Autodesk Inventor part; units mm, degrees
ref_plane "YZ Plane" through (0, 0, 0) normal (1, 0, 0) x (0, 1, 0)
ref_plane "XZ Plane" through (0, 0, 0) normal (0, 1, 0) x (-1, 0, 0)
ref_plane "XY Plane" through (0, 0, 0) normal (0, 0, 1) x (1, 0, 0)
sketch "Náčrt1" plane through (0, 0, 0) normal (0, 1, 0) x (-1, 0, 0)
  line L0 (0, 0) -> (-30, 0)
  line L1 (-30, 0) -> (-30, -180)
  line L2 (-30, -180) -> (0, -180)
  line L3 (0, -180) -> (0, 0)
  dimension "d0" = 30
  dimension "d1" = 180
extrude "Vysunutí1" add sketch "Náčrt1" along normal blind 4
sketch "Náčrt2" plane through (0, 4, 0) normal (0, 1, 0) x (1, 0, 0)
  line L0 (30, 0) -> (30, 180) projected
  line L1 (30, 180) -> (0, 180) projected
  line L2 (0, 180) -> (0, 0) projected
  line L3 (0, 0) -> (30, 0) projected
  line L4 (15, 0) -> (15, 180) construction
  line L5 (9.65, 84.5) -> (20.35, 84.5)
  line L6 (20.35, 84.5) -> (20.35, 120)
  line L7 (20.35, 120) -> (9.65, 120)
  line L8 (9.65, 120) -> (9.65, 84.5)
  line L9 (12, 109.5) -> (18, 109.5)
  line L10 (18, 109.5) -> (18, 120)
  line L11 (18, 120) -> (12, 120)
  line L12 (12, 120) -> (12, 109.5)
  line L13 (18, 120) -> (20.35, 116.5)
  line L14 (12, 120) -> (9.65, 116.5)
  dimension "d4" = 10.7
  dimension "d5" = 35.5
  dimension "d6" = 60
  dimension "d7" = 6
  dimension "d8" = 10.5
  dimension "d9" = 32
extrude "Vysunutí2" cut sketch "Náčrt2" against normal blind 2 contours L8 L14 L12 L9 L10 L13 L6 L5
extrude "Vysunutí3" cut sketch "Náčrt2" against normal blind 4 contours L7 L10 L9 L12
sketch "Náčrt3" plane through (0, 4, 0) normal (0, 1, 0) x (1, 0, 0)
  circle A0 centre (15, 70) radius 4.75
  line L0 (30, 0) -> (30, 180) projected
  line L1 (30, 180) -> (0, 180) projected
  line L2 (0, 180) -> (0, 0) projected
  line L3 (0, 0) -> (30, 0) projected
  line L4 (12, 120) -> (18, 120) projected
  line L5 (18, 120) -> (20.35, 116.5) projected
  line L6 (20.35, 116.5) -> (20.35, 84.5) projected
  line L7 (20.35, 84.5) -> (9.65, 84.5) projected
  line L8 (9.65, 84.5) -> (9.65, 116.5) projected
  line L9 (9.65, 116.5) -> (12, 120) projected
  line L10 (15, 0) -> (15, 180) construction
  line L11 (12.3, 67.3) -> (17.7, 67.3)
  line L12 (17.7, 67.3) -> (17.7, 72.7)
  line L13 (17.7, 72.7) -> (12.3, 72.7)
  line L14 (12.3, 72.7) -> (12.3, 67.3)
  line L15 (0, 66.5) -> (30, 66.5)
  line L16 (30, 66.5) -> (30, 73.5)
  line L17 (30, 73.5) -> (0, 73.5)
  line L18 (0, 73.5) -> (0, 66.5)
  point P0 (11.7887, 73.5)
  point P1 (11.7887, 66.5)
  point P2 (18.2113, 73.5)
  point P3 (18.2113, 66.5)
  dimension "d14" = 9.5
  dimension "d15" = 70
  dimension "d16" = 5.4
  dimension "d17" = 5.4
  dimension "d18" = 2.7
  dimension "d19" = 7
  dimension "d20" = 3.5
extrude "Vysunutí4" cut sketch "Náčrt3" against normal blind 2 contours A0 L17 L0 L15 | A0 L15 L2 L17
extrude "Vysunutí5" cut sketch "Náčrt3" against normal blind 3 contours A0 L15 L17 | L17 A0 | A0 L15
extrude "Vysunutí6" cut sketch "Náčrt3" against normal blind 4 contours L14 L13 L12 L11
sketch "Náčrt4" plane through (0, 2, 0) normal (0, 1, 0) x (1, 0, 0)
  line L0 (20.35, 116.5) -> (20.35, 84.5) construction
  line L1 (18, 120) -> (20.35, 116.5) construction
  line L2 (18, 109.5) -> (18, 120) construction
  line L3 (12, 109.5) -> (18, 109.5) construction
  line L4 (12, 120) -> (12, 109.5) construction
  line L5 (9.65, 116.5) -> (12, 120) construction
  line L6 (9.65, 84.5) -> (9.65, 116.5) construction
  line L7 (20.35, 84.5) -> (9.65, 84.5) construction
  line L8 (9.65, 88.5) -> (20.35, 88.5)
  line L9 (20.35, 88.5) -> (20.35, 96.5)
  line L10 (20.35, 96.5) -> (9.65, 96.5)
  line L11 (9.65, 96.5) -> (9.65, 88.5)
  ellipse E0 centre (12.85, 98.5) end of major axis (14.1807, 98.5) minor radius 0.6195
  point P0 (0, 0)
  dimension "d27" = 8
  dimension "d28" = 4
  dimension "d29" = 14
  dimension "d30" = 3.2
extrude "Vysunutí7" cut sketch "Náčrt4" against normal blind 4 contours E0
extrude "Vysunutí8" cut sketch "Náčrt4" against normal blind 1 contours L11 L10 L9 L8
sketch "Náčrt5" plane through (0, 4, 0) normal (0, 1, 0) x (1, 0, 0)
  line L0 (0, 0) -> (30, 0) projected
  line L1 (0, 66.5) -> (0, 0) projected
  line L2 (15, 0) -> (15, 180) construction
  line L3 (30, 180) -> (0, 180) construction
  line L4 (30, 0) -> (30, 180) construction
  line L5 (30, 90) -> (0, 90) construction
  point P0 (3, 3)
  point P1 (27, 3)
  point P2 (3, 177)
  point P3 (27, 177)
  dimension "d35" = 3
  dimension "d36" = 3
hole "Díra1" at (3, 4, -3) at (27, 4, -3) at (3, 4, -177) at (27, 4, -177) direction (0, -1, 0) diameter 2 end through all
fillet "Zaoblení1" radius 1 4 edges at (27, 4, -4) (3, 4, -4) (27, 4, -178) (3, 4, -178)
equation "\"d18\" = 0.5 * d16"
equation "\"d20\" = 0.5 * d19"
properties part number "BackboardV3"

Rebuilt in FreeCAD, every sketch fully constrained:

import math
import FreeCAD as App
import Part
import Sketcher

V = App.Vector
Q = App.Units.Quantity


def edges_at(feature, points):
    """Names of the edges that pass closest to the given points."""
    edges = feature.Shape.Edges
    near = lambda p: min(range(len(edges)), key=lambda i: edges[i].distToShape(Part.Vertex(*p))[0])
    return sorted({f"Edge{near(p) + 1}" for p in points})


def add_polygon(sketch, points):
    """Adds a closed chain of lines whose ends are joined by coincident constraints."""
    first, n = sketch.GeometryCount, len(points)
    for a, b in zip(points, points[1:] + points[:1]):
        sketch.addGeometry(Part.LineSegment(App.Vector(*a, 0), App.Vector(*b, 0)), False)
    for i in range(n):
        sketch.addConstraint(Sketcher.Constraint("Coincident", first + i, 2, first + (i + 1) % n, 1))

doc = App.newDocument("Part")
params = doc.addObject("Spreadsheet::Sheet", "Params")
for row, (alias, value) in enumerate([
    ("sketch1_width", "30 mm"),
    ("sketch1_height", "180 mm"),
    ("pad1_length", "4 mm"),
    ("sketch2_width", "6 mm"),
    ("sketch2_height", "32 mm"),
    ("sketch2_width2", "10.7 mm"),
    ("sketch2_height2", "10.5 mm"),
    ("pocket1_length", "2 mm"),
    ("sketch3_width", "6 mm"),
    ("sketch3_height", "10.5 mm"),
    ("pocket2_length", "4 mm"),
    ("sketch4_height", "7 mm"),
    ("sketch4_radius", "4.75 mm"),
    ("pocket3_length", "2 mm"),
    ("sketch5_diameter", "9.5 mm"),
    ("sketch5_width", "5.4 mm"),
    ("pocket4_length", "3 mm"),
    ("sketch6_width", "5.4 mm"),
    ("pocket5_length", "4 mm"),
    ("pocket6_length", "4 mm"),
    ("sketch8_height", "8 mm"),
    ("sketch8_width", "10.7 mm"),
    ("pocket7_length", "1 mm"),
    ("sketch9_diameter", "2 mm"),
    ("hole_diameter", "2 mm"),
    ("fillet_radius", "1 mm"),
], start=1):
    params.set(f"A{row}", alias)
    params.set(f"B{row}", "=" + value)
    params.setAlias(f"B{row}", alias)

body = doc.addObject("PartDesign::Body", "Body")

sketch1 = doc.addObject("Sketcher::SketchObject", "Sketch")
body.addObject(sketch1)
sketch1.AttachmentSupport = (doc.XZ_Plane, [""])
sketch1.MapMode = "FlatFace"
add_polygon(sketch1, [(0, -180), (0, 0), (30, 0), (30, -180)])
sketch1.addConstraint(Sketcher.Constraint("Vertical", 0))
sketch1.addConstraint(Sketcher.Constraint("Horizontal", 1))
sketch1.addConstraint(Sketcher.Constraint("Vertical", 2))
sketch1.addConstraint(Sketcher.Constraint("Horizontal", 3))
sketch1.addConstraint(Sketcher.Constraint("Coincident", 0, 2, -1, 1))
sketch1.addConstraint(Sketcher.Constraint("DistanceX", 1, 1, 1, 2, Q("30 mm")))
sketch1.addConstraint(Sketcher.Constraint("DistanceY", 0, 1, 0, 2, Q("180 mm")))
sketch1.setExpression("Constraints[9]", "Params.sketch1_width")
sketch1.setExpression("Constraints[10]", "Params.sketch1_height")
pad1 = doc.addObject("PartDesign::Pad", "Pad")
body.addObject(pad1)
pad1.Profile = sketch1
pad1.setExpression("Length", "Params.pad1_length")
pad1.Reversed = True

sketch2 = doc.addObject("Sketcher::SketchObject", "Sketch001")
body.addObject(sketch2)
sketch2.AttachmentSupport = (doc.XZ_Plane, [""])
sketch2.MapMode = "FlatFace"
sketch2.AttachmentOffset = App.Placement(V(0, 0, -4), App.Rotation())
add_polygon(sketch2, [(9.7, -116.5), (9.7, -84.5), (20.4, -84.5), (20.4, -116.5), (18, -120), (18, -109.5), (12, -109.5), (12, -120)])
sketch2.addConstraint(Sketcher.Constraint("Vertical", 0))
sketch2.addConstraint(Sketcher.Constraint("Horizontal", 1))
sketch2.addConstraint(Sketcher.Constraint("Vertical", 2))
sketch2.addConstraint(Sketcher.Constraint("Vertical", 4))
sketch2.addConstraint(Sketcher.Constraint("Horizontal", 5))
sketch2.addConstraint(Sketcher.Constraint("Vertical", 6))
sketch2.addConstraint(Sketcher.Constraint("Horizontal", 3, 2, 6, 2))
sketch2.addConstraint(Sketcher.Constraint("Horizontal", 2, 2, 7, 2))
sketch2.addConstraint(Sketcher.Constraint("Equal", 3, 7))
sketch2.addConstraint(Sketcher.Constraint("DistanceX", 5, 2, 5, 1, Q("6 mm")))
sketch2.addConstraint(Sketcher.Constraint("DistanceY", 0, 1, 0, 2, Q("32 mm")))
sketch2.addConstraint(Sketcher.Constraint("DistanceX", 1, 1, 1, 2, Q("10.7 mm")))
sketch2.addConstraint(Sketcher.Constraint("DistanceY", 4, 1, 4, 2, Q("10.5 mm")))
sketch2.addConstraint(Sketcher.Constraint("DistanceY", 3, 2, 1, 2, Q("35.5 mm")))
sketch2.addConstraint(Sketcher.Constraint("DistanceX", -1, 1, 3, 2, Q("18 mm")))
sketch2.addConstraint(Sketcher.Constraint("DistanceY", 3, 2, -1, 1, Q("120 mm")))
sketch2.setExpression("Constraints[17]", "Params.sketch2_width")
sketch2.setExpression("Constraints[18]", "Params.sketch2_height")
sketch2.setExpression("Constraints[19]", "Params.sketch2_width2")
sketch2.setExpression("Constraints[20]", "Params.sketch2_height2")
pocket1 = doc.addObject("PartDesign::Pocket", "Pocket")
body.addObject(pocket1)
pocket1.Profile = sketch2
pocket1.setExpression("Length", "Params.pocket1_length")
pocket1.Reversed = True

sketch3 = doc.addObject("Sketcher::SketchObject", "Sketch002")
body.addObject(sketch3)
sketch3.AttachmentSupport = (doc.XZ_Plane, [""])
sketch3.MapMode = "FlatFace"
sketch3.AttachmentOffset = App.Placement(V(0, 0, -4), App.Rotation())
add_polygon(sketch3, [(18, -120), (12, -120), (12, -110), (18, -110)])
sketch3.addConstraint(Sketcher.Constraint("Horizontal", 0))
sketch3.addConstraint(Sketcher.Constraint("Vertical", 1))
sketch3.addConstraint(Sketcher.Constraint("Horizontal", 2))
sketch3.addConstraint(Sketcher.Constraint("Vertical", 3))
sketch3.addConstraint(Sketcher.Constraint("DistanceX", 0, 2, 0, 1, Q("6 mm")))
sketch3.addConstraint(Sketcher.Constraint("DistanceY", 1, 1, 1, 2, Q("10.5 mm")))
sketch3.addConstraint(Sketcher.Constraint("DistanceX", -1, 1, 0, 2, Q("12 mm")))
sketch3.addConstraint(Sketcher.Constraint("DistanceY", 0, 2, -1, 1, Q("120 mm")))
sketch3.setExpression("Constraints[8]", "Params.sketch3_width")
sketch3.setExpression("Constraints[9]", "Params.sketch3_height")
pocket2 = doc.addObject("PartDesign::Pocket", "Pocket001")
body.addObject(pocket2)
pocket2.Profile = sketch3
pocket2.setExpression("Length", "Params.pocket2_length")
pocket2.Reversed = True

sketch4 = doc.addObject("Sketcher::SketchObject", "Sketch003")
body.addObject(sketch4)
sketch4.AttachmentSupport = (doc.XZ_Plane, [""])
sketch4.MapMode = "FlatFace"
sketch4.AttachmentOffset = App.Placement(V(0, 0, -4), App.Rotation())
sketch4.addGeometry(Part.ArcOfCircle(Part.Circle(V(15, -70, 0), V(0, 0, 1), 4.8), math.radians(-47), math.radians(47)), False)
sketch4.addGeometry(Part.LineSegment(V(18.2, -66.5, 0), V(30, -66.5, 0)), False)
sketch4.addGeometry(Part.LineSegment(V(30, -66.5, 0), V(30, -73.5, 0)), False)
sketch4.addGeometry(Part.LineSegment(V(30, -73.5, 0), V(18.2, -73.5, 0)), False)
sketch4.addGeometry(Part.ArcOfCircle(Part.Circle(V(15, -70, 0), V(0, 0, 1), 4.8), math.radians(133), math.radians(227)), False)
sketch4.addGeometry(Part.LineSegment(V(11.8, -73.5, 0), V(0, -73.5, 0)), False)
sketch4.addGeometry(Part.LineSegment(V(0, -73.5, 0), V(0, -66.5, 0)), False)
sketch4.addGeometry(Part.LineSegment(V(0, -66.5, 0), V(11.8, -66.5, 0)), False)
sketch4.addConstraint(Sketcher.Constraint("Coincident", 0, 2, 1, 1))
sketch4.addConstraint(Sketcher.Constraint("Coincident", 1, 2, 2, 1))
sketch4.addConstraint(Sketcher.Constraint("Coincident", 2, 2, 3, 1))
sketch4.addConstraint(Sketcher.Constraint("Coincident", 3, 2, 0, 1))
sketch4.addConstraint(Sketcher.Constraint("Coincident", 4, 2, 5, 1))
sketch4.addConstraint(Sketcher.Constraint("Coincident", 5, 2, 6, 1))
sketch4.addConstraint(Sketcher.Constraint("Coincident", 6, 2, 7, 1))
sketch4.addConstraint(Sketcher.Constraint("Coincident", 7, 2, 4, 1))
sketch4.addConstraint(Sketcher.Constraint("Horizontal", 1))
sketch4.addConstraint(Sketcher.Constraint("Vertical", 2))
sketch4.addConstraint(Sketcher.Constraint("Horizontal", 3))
sketch4.addConstraint(Sketcher.Constraint("Horizontal", 5))
sketch4.addConstraint(Sketcher.Constraint("Vertical", 6))
sketch4.addConstraint(Sketcher.Constraint("Horizontal", 7))
sketch4.addConstraint(Sketcher.Constraint("Coincident", 4, 3, 0, 3))
sketch4.addConstraint(Sketcher.Constraint("Equal", 0, 4))
sketch4.addConstraint(Sketcher.Constraint("PointOnObject", 5, 2, -2))
sketch4.addConstraint(Sketcher.Constraint("Horizontal", 3, 2, 4, 2))
sketch4.addConstraint(Sketcher.Constraint("Horizontal", 1, 2, 6, 2))
sketch4.addConstraint(Sketcher.Constraint("Vertical", 0, 2, 3, 2))
sketch4.addConstraint(Sketcher.Constraint("Equal", 3, 5))
sketch4.addConstraint(Sketcher.Constraint("DistanceY", 2, 2, 2, 1, Q("7 mm")))
sketch4.addConstraint(Sketcher.Constraint("Radius", 0, Q("4.75 mm")))
sketch4.addConstraint(Sketcher.Constraint("DistanceY", 0, 3, -1, 1, Q("70 mm")))
sketch4.addConstraint(Sketcher.Constraint("DistanceX", -1, 1, 0, 3, Q("15 mm")))
sketch4.setExpression("Constraints[21]", "Params.sketch4_height")
sketch4.setExpression("Constraints[22]", "Params.sketch4_radius")
pocket3 = doc.addObject("PartDesign::Pocket", "Pocket002")
body.addObject(pocket3)
pocket3.Profile = sketch4
pocket3.setExpression("Length", "Params.pocket3_length")
pocket3.Reversed = True

sketch5 = doc.addObject("Sketcher::SketchObject", "Sketch004")
body.addObject(sketch5)
sketch5.AttachmentSupport = (doc.XZ_Plane, [""])
sketch5.MapMode = "FlatFace"
sketch5.AttachmentOffset = App.Placement(V(0, 0, -4), App.Rotation())
sketch5.addGeometry(Part.Circle(V(15, -70, 0), V(0, 0, 1), 4.8), False)
add_polygon(sketch5, [(17.7, -67.3), (12.3, -67.3), (12.3, -72.7), (17.7, -72.7)])
sketch5.addConstraint(Sketcher.Constraint("Horizontal", 1))
sketch5.addConstraint(Sketcher.Constraint("Vertical", 2))
sketch5.addConstraint(Sketcher.Constraint("Horizontal", 3))
sketch5.addConstraint(Sketcher.Constraint("Vertical", 4))
sketch5.addConstraint(Sketcher.Constraint("Equal", 3, 2))
sketch5.addConstraint(Sketcher.Constraint("Diameter", 0, Q("9.5 mm")))
sketch5.addConstraint(Sketcher.Constraint("DistanceX", 1, 2, 1, 1, Q("5.4 mm")))
sketch5.addConstraint(Sketcher.Constraint("DistanceY", 0, 3, -1, 1, Q("70 mm")))
sketch5.addConstraint(Sketcher.Constraint("DistanceX", 1, 2, 0, 3, Q("2.7 mm")))
sketch5.addConstraint(Sketcher.Constraint("DistanceY", 0, 3, 1, 2, Q("2.7 mm")))
sketch5.addConstraint(Sketcher.Constraint("DistanceX", -1, 1, 0, 3, Q("15 mm")))
sketch5.setExpression("Constraints[9]", "Params.sketch5_diameter")
sketch5.setExpression("Constraints[10]", "Params.sketch5_width")
pocket4 = doc.addObject("PartDesign::Pocket", "Pocket003")
body.addObject(pocket4)
pocket4.Profile = sketch5
pocket4.setExpression("Length", "Params.pocket4_length")
pocket4.Reversed = True

sketch6 = doc.addObject("Sketcher::SketchObject", "Sketch005")
body.addObject(sketch6)
sketch6.AttachmentSupport = (doc.XZ_Plane, [""])
sketch6.MapMode = "FlatFace"
sketch6.AttachmentOffset = App.Placement(V(0, 0, -4), App.Rotation())
add_polygon(sketch6, [(12, -73), (12, -67), (18, -67), (18, -73)])
sketch6.addConstraint(Sketcher.Constraint("Vertical", 0))
sketch6.addConstraint(Sketcher.Constraint("Horizontal", 1))
sketch6.addConstraint(Sketcher.Constraint("Vertical", 2))
sketch6.addConstraint(Sketcher.Constraint("Horizontal", 3))
sketch6.addConstraint(Sketcher.Constraint("Equal", 3, 0))
sketch6.addConstraint(Sketcher.Constraint("DistanceX", 1, 1, 1, 2, Q("5.4 mm")))
sketch6.addConstraint(Sketcher.Constraint("DistanceX", -1, 1, 0, 2, Q("12.3 mm")))
sketch6.addConstraint(Sketcher.Constraint("DistanceY", 0, 2, -1, 1, Q("67.3 mm")))
sketch6.setExpression("Constraints[9]", "Params.sketch6_width")
pocket5 = doc.addObject("PartDesign::Pocket", "Pocket004")
body.addObject(pocket5)
pocket5.Profile = sketch6
pocket5.setExpression("Length", "Params.pocket5_length")
pocket5.Reversed = True

sketch7 = doc.addObject("Sketcher::SketchObject", "Sketch006")
body.addObject(sketch7)
sketch7.AttachmentSupport = (doc.XZ_Plane, [""])
sketch7.MapMode = "FlatFace"
sketch7.AttachmentOffset = App.Placement(V(0, 0, -2), App.Rotation())
sketch7.addGeometry(Part.Ellipse(V(14.1807, -98.5, 0), V(12.85, -97.8805, 0), V(12.85, -98.5, 0)), False)
sketch7.addConstraint(Sketcher.Constraint("Block", 0))
pocket6 = doc.addObject("PartDesign::Pocket", "Pocket005")
body.addObject(pocket6)
pocket6.Profile = sketch7
pocket6.setExpression("Length", "Params.pocket6_length")
pocket6.Reversed = True

sketch8 = doc.addObject("Sketcher::SketchObject", "Sketch007")
body.addObject(sketch8)
sketch8.AttachmentSupport = (doc.XZ_Plane, [""])
sketch8.MapMode = "FlatFace"
sketch8.AttachmentOffset = App.Placement(V(0, 0, -2), App.Rotation())
add_polygon(sketch8, [(10, -96), (10, -88), (20, -88), (20, -96)])
sketch8.addConstraint(Sketcher.Constraint("Vertical", 0))
sketch8.addConstraint(Sketcher.Constraint("Horizontal", 1))
sketch8.addConstraint(Sketcher.Constraint("Vertical", 2))
sketch8.addConstraint(Sketcher.Constraint("Horizontal", 3))
sketch8.addConstraint(Sketcher.Constraint("DistanceY", 0, 1, 0, 2, Q("8 mm")))
sketch8.addConstraint(Sketcher.Constraint("DistanceX", 1, 1, 1, 2, Q("10.7 mm")))
sketch8.addConstraint(Sketcher.Constraint("DistanceY", 0, 2, -1, 1, Q("88.5 mm")))
sketch8.addConstraint(Sketcher.Constraint("DistanceX", -1, 1, 0, 2, Q("9.65 mm")))
sketch8.setExpression("Constraints[8]", "Params.sketch8_height")
sketch8.setExpression("Constraints[9]", "Params.sketch8_width")
pocket7 = doc.addObject("PartDesign::Pocket", "Pocket006")
body.addObject(pocket7)
pocket7.Profile = sketch8
pocket7.setExpression("Length", "Params.pocket7_length")
pocket7.Reversed = True

sketch9 = doc.addObject("Sketcher::SketchObject", "Sketch008")
body.addObject(sketch9)
sketch9.AttachmentSupport = (doc.XZ_Plane, [""])
sketch9.MapMode = "FlatFace"
sketch9.AttachmentOffset = App.Placement(V(0, 0, -4), App.Rotation())
sketch9.addGeometry(Part.Circle(V(3, -3, 0), V(0, 0, 1), 1), False)
sketch9.addGeometry(Part.Circle(V(27, -3, 0), V(0, 0, 1), 1), False)
sketch9.addGeometry(Part.Circle(V(3, -177, 0), V(0, 0, 1), 1), False)
sketch9.addGeometry(Part.Circle(V(27, -177, 0), V(0, 0, 1), 1), False)
sketch9.addConstraint(Sketcher.Constraint("Equal", 0, 1))
sketch9.addConstraint(Sketcher.Constraint("Equal", 1, 2))
sketch9.addConstraint(Sketcher.Constraint("Equal", 2, 3))
sketch9.addConstraint(Sketcher.Constraint("Horizontal", 0, 3, 1, 3))
sketch9.addConstraint(Sketcher.Constraint("Horizontal", 2, 3, 3, 3))
sketch9.addConstraint(Sketcher.Constraint("Vertical", 0, 3, 2, 3))
sketch9.addConstraint(Sketcher.Constraint("Vertical", 1, 3, 3, 3))
sketch9.addConstraint(Sketcher.Constraint("Diameter", 0, Q("2 mm")))
sketch9.addConstraint(Sketcher.Constraint("DistanceX", -1, 1, 0, 3, Q("3 mm")))
sketch9.addConstraint(Sketcher.Constraint("DistanceY", 0, 3, -1, 1, Q("3 mm")))
sketch9.addConstraint(Sketcher.Constraint("DistanceX", -1, 1, 1, 3, Q("27 mm")))
sketch9.addConstraint(Sketcher.Constraint("DistanceY", 2, 3, -1, 1, Q("177 mm")))
sketch9.setExpression("Constraints[7]", "Params.sketch9_diameter")
doc.recompute()
hole = doc.addObject("PartDesign::Hole", "Hole")
body.addObject(hole)
hole.Profile = sketch9
hole.ThreadType = "None"
hole.setExpression("Diameter", "Params.hole_diameter")
hole.DepthType = "ThroughAll"
hole.Reversed = True
doc.recompute()

fillet = doc.addObject("PartDesign::Fillet", "Fillet")
body.addObject(fillet)
fillet.Base = (hole, edges_at(hole, [
    (27, 4, -4),
    (3, 4, -4),
    (27, 4, -178),
    (3, 4, -178),
]))
fillet.setExpression("Radius", "Params.fillet_radius")

doc.recompute()
